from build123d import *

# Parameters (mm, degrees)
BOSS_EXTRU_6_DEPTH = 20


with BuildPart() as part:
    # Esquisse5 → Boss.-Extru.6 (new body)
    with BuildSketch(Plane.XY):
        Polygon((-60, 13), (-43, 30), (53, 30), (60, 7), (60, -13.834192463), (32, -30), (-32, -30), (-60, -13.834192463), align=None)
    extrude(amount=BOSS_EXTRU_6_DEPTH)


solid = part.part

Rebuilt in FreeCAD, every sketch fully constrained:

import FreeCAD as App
import Part
import Sketcher
from FreeCAD import Vector
Q = App.Units.Quantity

doc = App.newDocument("Part")
body = doc.addObject("PartDesign::Body", "Body")

# Sketch on XY plane
sketch1 = body.newObject("Sketcher::SketchObject", "Sketch")
sketch1.AttachmentSupport = (doc.getObject("XY_Plane"), [""])
sketch1.MapMode = "FlatFace"
sketch1.addGeometry(Part.LineSegment(Vector(-43, 30, 0), Vector(-60, 13, 0)), False)
sketch1.addGeometry(Part.LineSegment(Vector(-60, 13, 0), Vector(-60, -14, 0)), False)
sketch1.addGeometry(Part.LineSegment(Vector(-60, -14, 0), Vector(-32, -30, 0)), False)
sketch1.addGeometry(Part.LineSegment(Vector(-32, -30, 0), Vector(32, -30, 0)), False)
sketch1.addGeometry(Part.LineSegment(Vector(32, -30, 0), Vector(60, -14, 0)), False)
sketch1.addGeometry(Part.LineSegment(Vector(60, -14, 0), Vector(60, 7, 0)), False)
sketch1.addGeometry(Part.LineSegment(Vector(60, 7, 0), Vector(53, 30, 0)), False)
sketch1.addGeometry(Part.LineSegment(Vector(53, 30, 0), Vector(-43, 30, 0)), False)
sketch1.addConstraint(Sketcher.Constraint("Coincident", 0, 2, 1, 1))
sketch1.addConstraint(Sketcher.Constraint("Coincident", 1, 2, 2, 1))
sketch1.addConstraint(Sketcher.Constraint("Coincident", 2, 2, 3, 1))
sketch1.addConstraint(Sketcher.Constraint("Coincident", 3, 2, 4, 1))
sketch1.addConstraint(Sketcher.Constraint("Coincident", 4, 2, 5, 1))
sketch1.addConstraint(Sketcher.Constraint("Coincident", 5, 2, 6, 1))
sketch1.addConstraint(Sketcher.Constraint("Coincident", 6, 2, 7, 1))
sketch1.addConstraint(Sketcher.Constraint("Coincident", 7, 2, 0, 1))
sketch1.addConstraint(Sketcher.Constraint("Vertical", 1))
sketch1.addConstraint(Sketcher.Constraint("Horizontal", 3))
sketch1.addConstraint(Sketcher.Constraint("Vertical", 5))
sketch1.addConstraint(Sketcher.Constraint("Horizontal", 7))
sketch1.addConstraint(Sketcher.Constraint("Symmetric", 1, 2, 4, 2, -2))
sketch1.addConstraint(Sketcher.Constraint("Equal", 2, 4))
sketch1.addConstraint(Sketcher.Constraint("Equal", 0, 6))
sketch1.addConstraint(Sketcher.Constraint("DistanceX", 3, 1, 3, 2, 64.0))
sketch1.addConstraint(Sketcher.Constraint("DistanceX", 7, 2, 7, 1, 96.0))
sketch1.addConstraint(Sketcher.Constraint("Angle", 0, Q("-135 deg")))
sketch1.addConstraint(Sketcher.Constraint("Angle", 2, Q("-30 deg")))
sketch1.addConstraint(Sketcher.Constraint("DistanceX", 0, 2, -1, 1, 60.0))
sketch1.addConstraint(Sketcher.Constraint("DistanceY", -1, 1, 0, 2, 13.0))
sketch1.addConstraint(Sketcher.Constraint("DistanceY", 2, 2, -1, 1, 30.0))
sketch1.addConstraint(Sketcher.Constraint("DistanceY", -1, 1, 5, 2, 7.0))
pad1 = body.newObject("PartDesign::Pad", "Pad")
pad1.Profile = sketch1
pad1.Length = 20

doc.recompute()
